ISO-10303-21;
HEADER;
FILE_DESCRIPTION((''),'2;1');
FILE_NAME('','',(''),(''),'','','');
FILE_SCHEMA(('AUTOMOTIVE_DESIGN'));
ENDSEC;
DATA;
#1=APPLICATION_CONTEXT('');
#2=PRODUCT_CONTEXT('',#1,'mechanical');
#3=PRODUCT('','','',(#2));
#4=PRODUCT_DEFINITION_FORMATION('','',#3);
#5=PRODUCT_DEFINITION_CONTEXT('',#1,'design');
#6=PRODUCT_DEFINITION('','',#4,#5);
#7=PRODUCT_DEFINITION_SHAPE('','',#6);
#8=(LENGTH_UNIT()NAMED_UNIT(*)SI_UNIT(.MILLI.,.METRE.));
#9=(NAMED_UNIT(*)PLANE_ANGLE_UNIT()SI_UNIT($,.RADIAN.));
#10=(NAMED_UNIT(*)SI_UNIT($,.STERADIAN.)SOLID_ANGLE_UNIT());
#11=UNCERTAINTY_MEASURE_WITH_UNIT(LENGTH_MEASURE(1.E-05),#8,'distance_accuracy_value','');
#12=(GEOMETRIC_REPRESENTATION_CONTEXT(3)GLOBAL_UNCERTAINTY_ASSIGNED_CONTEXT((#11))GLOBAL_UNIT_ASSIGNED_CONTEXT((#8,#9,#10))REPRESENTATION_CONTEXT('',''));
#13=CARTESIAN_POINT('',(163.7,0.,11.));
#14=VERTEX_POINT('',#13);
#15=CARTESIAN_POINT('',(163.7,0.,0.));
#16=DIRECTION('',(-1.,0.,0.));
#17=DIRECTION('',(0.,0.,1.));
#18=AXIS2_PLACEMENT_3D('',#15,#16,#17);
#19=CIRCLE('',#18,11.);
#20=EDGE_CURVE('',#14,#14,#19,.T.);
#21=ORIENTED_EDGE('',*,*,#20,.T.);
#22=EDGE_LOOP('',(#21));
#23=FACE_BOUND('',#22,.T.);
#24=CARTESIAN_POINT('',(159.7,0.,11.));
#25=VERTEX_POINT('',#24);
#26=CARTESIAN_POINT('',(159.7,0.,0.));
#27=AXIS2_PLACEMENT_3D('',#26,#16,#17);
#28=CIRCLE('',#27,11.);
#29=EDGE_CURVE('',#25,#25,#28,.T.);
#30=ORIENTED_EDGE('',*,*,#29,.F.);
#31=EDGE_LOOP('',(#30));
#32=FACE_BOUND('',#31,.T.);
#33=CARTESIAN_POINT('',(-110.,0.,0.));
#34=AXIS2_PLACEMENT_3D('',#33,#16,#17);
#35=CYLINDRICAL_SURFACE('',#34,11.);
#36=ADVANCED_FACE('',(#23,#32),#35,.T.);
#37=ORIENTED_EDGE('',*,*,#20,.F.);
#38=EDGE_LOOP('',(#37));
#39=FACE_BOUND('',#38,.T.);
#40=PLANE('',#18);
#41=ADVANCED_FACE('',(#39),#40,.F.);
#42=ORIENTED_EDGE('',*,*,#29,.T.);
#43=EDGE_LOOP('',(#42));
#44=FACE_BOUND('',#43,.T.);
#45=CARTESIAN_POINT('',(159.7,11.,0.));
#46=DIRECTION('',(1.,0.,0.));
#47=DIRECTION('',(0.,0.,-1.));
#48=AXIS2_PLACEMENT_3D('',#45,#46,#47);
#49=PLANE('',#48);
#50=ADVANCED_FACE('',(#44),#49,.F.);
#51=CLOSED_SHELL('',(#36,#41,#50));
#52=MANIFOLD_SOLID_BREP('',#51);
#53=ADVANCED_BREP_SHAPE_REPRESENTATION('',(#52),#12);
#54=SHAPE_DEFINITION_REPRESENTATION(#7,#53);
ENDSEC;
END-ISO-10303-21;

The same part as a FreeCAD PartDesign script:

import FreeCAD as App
import Part
import Sketcher

V = App.Vector
Q = App.Units.Quantity


def add_polygon(sketch, points):
    """Adds a closed chain of lines whose ends are joined by coincident constraints."""
    first, n = sketch.GeometryCount, len(points)
    for a, b in zip(points, points[1:] + points[:1]):
        sketch.addGeometry(Part.LineSegment(App.Vector(*a, 0), App.Vector(*b, 0)), False)
    for i in range(n):
        sketch.addConstraint(Sketcher.Constraint("Coincident", first + i, 2, first + (i + 1) % n, 1))

doc = App.newDocument("Part")
params = doc.addObject("Spreadsheet::Sheet", "Params")
for row, (alias, value) in enumerate([
    ("sketch1_width", "4 mm"),
    ("sketch1_height", "11 mm"),
    ("revolution_angle", "360 deg"),
], start=1):
    params.set(f"A{row}", alias)
    params.set(f"B{row}", "=" + value)
    params.setAlias(f"B{row}", alias)

body = doc.addObject("PartDesign::Body", "Body")

# Sketch on XY plane
sketch1 = body.newObject("Sketcher::SketchObject", "Sketch")
sketch1.AttachmentSupport = (doc.getObject("XY_Plane"), [""])
sketch1.MapMode = "FlatFace"
add_polygon(sketch1, [(159.7, 11), (159.7, 0), (163.7, 0), (163.7, 11)])  # lines 0-3
sketch1.addConstraint([
    Sketcher.Constraint("Vertical", 0),
    Sketcher.Constraint("Horizontal", 1),
    Sketcher.Constraint("Vertical", 2),
    Sketcher.Constraint("Horizontal", 3),
    Sketcher.Constraint("PointOnObject", 0, 2, -1),
    Sketcher.Constraint("DistanceX", 1, 1, 1, 2, Q("4 mm")),
    Sketcher.Constraint("DistanceY", 0, 2, 0, 1, Q("11 mm")),
    Sketcher.Constraint("DistanceX", -1, 1, 0, 2, Q("159.7 mm")),
])
sketch1.setExpression("Constraints[9]", "Params.sketch1_width")
sketch1.setExpression("Constraints[10]", "Params.sketch1_height")
revolution = body.newObject("PartDesign::Revolution", "Revolution")
revolution.Profile = sketch1
revolution.ReferenceAxis = (sketch1, ["H_Axis"])
revolution.setExpression("Angle", "Params.revolution_angle")

doc.recompute()
